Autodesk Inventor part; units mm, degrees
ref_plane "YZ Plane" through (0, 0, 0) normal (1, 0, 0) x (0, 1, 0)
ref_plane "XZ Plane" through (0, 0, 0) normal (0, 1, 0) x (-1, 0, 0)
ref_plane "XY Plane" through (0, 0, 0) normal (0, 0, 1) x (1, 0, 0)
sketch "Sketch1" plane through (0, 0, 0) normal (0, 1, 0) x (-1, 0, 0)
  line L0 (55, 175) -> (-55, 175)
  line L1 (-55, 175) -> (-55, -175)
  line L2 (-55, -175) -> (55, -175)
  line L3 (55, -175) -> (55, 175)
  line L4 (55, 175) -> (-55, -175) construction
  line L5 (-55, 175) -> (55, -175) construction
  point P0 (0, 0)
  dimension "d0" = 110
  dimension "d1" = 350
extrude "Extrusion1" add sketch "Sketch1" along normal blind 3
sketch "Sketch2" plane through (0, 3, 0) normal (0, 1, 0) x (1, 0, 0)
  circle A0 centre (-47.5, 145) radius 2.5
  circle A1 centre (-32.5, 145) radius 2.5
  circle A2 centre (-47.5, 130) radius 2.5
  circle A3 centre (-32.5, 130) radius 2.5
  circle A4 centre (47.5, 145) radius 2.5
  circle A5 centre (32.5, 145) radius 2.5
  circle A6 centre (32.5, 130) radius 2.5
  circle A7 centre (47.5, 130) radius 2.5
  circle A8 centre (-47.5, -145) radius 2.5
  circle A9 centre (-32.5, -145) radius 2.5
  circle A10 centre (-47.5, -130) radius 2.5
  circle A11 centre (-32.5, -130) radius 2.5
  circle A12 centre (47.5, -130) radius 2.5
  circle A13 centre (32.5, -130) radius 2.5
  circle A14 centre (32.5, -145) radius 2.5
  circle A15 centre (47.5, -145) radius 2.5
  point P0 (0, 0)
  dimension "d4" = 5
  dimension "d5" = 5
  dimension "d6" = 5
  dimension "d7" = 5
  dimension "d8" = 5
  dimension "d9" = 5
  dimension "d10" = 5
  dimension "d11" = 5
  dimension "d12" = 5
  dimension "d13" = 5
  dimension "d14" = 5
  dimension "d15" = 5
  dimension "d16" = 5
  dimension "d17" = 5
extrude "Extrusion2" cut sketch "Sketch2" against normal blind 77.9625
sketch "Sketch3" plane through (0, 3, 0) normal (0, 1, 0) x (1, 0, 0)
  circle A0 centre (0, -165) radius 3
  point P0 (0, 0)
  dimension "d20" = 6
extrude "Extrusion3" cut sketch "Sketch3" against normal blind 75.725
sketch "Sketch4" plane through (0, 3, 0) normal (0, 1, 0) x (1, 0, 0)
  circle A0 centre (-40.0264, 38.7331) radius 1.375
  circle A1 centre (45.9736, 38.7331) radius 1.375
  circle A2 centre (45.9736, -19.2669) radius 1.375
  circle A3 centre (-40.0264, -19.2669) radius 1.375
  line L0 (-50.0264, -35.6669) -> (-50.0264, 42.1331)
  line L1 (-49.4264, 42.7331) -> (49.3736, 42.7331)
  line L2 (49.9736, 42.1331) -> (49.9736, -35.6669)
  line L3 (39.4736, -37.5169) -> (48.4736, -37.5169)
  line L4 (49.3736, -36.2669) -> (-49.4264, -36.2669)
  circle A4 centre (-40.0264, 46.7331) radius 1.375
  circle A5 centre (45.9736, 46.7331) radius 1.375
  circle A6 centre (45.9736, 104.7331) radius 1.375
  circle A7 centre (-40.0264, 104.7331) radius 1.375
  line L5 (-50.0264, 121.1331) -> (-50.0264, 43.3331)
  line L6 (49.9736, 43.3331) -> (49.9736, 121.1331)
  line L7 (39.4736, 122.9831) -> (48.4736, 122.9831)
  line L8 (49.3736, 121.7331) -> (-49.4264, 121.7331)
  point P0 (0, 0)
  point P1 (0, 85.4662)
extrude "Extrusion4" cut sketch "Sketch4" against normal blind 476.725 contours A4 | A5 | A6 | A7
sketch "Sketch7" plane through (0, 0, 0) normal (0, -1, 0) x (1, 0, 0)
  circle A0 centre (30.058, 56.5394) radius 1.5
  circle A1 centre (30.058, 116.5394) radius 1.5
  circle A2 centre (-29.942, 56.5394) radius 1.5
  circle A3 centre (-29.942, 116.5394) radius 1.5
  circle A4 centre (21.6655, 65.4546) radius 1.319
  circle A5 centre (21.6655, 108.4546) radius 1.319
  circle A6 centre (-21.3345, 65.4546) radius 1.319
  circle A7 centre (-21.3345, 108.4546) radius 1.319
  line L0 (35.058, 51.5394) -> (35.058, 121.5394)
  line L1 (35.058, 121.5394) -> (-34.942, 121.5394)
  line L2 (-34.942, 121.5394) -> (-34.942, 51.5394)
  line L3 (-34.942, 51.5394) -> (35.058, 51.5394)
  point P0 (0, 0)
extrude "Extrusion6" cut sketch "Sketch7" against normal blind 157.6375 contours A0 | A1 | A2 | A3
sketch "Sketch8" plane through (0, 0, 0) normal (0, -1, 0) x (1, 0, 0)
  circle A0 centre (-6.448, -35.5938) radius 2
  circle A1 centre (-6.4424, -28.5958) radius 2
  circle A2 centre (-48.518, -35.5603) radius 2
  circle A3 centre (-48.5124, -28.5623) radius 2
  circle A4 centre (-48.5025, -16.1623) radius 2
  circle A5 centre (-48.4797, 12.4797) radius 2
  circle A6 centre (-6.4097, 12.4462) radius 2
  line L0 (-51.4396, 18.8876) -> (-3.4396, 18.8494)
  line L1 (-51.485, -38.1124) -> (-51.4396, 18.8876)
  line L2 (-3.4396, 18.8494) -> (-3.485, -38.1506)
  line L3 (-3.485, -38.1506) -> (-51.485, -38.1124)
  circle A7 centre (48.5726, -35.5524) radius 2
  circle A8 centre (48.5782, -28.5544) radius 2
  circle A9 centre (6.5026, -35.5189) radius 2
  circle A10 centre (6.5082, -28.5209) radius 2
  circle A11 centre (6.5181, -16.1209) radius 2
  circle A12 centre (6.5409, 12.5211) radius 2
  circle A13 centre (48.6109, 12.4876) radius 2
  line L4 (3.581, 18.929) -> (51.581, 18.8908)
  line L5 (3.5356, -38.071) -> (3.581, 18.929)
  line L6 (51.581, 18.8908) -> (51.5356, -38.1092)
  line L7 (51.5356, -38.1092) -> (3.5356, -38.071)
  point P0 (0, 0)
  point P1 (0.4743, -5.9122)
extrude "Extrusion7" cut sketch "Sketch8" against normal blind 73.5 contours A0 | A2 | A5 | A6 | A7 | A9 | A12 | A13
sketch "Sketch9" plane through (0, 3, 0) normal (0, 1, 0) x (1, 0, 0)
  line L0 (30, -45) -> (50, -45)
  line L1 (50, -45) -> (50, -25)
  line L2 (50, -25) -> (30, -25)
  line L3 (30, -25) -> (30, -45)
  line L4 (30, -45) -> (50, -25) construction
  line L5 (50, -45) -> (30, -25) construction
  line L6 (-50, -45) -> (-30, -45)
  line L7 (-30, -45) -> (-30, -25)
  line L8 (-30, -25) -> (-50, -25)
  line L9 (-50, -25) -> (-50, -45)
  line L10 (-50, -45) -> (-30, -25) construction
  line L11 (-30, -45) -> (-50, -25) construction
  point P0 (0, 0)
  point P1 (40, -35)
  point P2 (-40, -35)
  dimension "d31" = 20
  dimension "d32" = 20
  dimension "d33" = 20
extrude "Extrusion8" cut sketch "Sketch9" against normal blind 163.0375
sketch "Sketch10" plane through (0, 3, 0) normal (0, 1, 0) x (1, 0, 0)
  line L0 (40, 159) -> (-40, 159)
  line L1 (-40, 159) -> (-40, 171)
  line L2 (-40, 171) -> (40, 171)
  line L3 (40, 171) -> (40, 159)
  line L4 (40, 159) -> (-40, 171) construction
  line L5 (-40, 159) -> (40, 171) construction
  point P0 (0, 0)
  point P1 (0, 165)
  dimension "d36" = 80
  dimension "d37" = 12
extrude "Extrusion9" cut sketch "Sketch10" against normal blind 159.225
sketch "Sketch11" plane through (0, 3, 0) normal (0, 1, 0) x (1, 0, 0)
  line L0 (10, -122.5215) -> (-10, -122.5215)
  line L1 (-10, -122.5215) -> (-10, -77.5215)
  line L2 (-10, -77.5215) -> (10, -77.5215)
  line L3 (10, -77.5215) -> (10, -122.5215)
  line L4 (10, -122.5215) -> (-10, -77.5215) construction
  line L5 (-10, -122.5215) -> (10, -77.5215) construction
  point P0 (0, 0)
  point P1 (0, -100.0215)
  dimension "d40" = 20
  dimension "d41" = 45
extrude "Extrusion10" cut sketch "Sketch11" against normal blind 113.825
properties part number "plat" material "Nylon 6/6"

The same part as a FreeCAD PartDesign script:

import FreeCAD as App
import Part
import Sketcher
from FreeCAD import Vector
Q = App.Units.Quantity

doc = App.newDocument("Part")
body = doc.addObject("PartDesign::Body", "Body")

# Sketch on XZ plane
sketch1 = doc.addObject("Sketcher::SketchObject", "Sketch")
body.addObject(sketch1)
sketch1.AttachmentSupport = (doc.XZ_Plane, [""])
sketch1.MapMode = "FlatFace"
sketch1.addGeometry(Part.LineSegment(Vector(-55, -175, 0), Vector(-55, 175, 0)), False)
sketch1.addGeometry(Part.LineSegment(Vector(-55, 175, 0), Vector(55, 175, 0)), False)
sketch1.addGeometry(Part.LineSegment(Vector(55, 175, 0), Vector(55, -175, 0)), False)
sketch1.addGeometry(Part.LineSegment(Vector(55, -175, 0), Vector(-55, -175, 0)), False)
sketch1.addConstraint(Sketcher.Constraint("Coincident", 0, 2, 1, 1))
sketch1.addConstraint(Sketcher.Constraint("Coincident", 1, 2, 2, 1))
sketch1.addConstraint(Sketcher.Constraint("Coincident", 2, 2, 3, 1))
sketch1.addConstraint(Sketcher.Constraint("Coincident", 3, 2, 0, 1))
sketch1.addConstraint(Sketcher.Constraint("Vertical", 0))
sketch1.addConstraint(Sketcher.Constraint("Horizontal", 1))
sketch1.addConstraint(Sketcher.Constraint("Vertical", 2))
sketch1.addConstraint(Sketcher.Constraint("Horizontal", 3))
sketch1.addConstraint(Sketcher.Constraint("Symmetric", 0, 2, 2, 2, -1, 1))
sketch1.addConstraint(Sketcher.Constraint("DistanceX", 1, 1, 1, 2, Q("110 mm")))
sketch1.addConstraint(Sketcher.Constraint("DistanceY", 0, 1, 0, 2, Q("350 mm")))
pad1 = doc.addObject("PartDesign::Pad", "Pad")
body.addObject(pad1)
pad1.Profile = sketch1
pad1.Length = 3
pad1.Reversed = True

# Sketch on XZ plane
sketch2 = doc.addObject("Sketcher::SketchObject", "Sketch001")
body.addObject(sketch2)
sketch2.AttachmentSupport = (doc.XZ_Plane, [""])
sketch2.MapMode = "FlatFace"
sketch2.AttachmentOffset = App.Placement(Vector(0, 0, -3), App.Rotation())
sketch2.addGeometry(Part.Circle(Vector(-47.5, -145, 0), Vector(0, 0, 1), 2.5), False)
sketch2.addGeometry(Part.Circle(Vector(-32.5, -145, 0), Vector(0, 0, 1), 2.5), False)
sketch2.addGeometry(Part.Circle(Vector(-47.5, -130, 0), Vector(0, 0, 1), 2.5), False)
sketch2.addGeometry(Part.Circle(Vector(-32.5, -130, 0), Vector(0, 0, 1), 2.5), False)
sketch2.addGeometry(Part.Circle(Vector(47.5, -145, 0), Vector(0, 0, 1), 2.5), False)
sketch2.addGeometry(Part.Circle(Vector(32.5, -145, 0), Vector(0, 0, 1), 2.5), False)
sketch2.addGeometry(Part.Circle(Vector(32.5, -130, 0), Vector(0, 0, 1), 2.5), False)
sketch2.addGeometry(Part.Circle(Vector(47.5, -130, 0), Vector(0, 0, 1), 2.5), False)
sketch2.addGeometry(Part.Circle(Vector(-47.5, 145, 0), Vector(0, 0, 1), 2.5), False)
sketch2.addGeometry(Part.Circle(Vector(-32.5, 145, 0), Vector(0, 0, 1), 2.5), False)
sketch2.addGeometry(Part.Circle(Vector(-47.5, 130, 0), Vector(0, 0, 1), 2.5), False)
sketch2.addGeometry(Part.Circle(Vector(-32.5, 130, 0), Vector(0, 0, 1), 2.5), False)
sketch2.addGeometry(Part.Circle(Vector(47.5, 130, 0), Vector(0, 0, 1), 2.5), False)
sketch2.addGeometry(Part.Circle(Vector(32.5, 130, 0), Vector(0, 0, 1), 2.5), False)
sketch2.addGeometry(Part.Circle(Vector(32.5, 145, 0), Vector(0, 0, 1), 2.5), False)
sketch2.addGeometry(Part.Circle(Vector(47.5, 145, 0), Vector(0, 0, 1), 2.5), False)
sketch2.addConstraint(Sketcher.Constraint("Equal", 0, 1))
sketch2.addConstraint(Sketcher.Constraint("Equal", 1, 2))
sketch2.addConstraint(Sketcher.Constraint("Equal", 2, 3))
sketch2.addConstraint(Sketcher.Constraint("Equal", 3, 4))
sketch2.addConstraint(Sketcher.Constraint("Equal", 4, 5))
sketch2.addConstraint(Sketcher.Constraint("Equal", 5, 6))
sketch2.addConstraint(Sketcher.Constraint("Equal", 6, 7))
sketch2.addConstraint(Sketcher.Constraint("Equal", 7, 8))
sketch2.addConstraint(Sketcher.Constraint("Equal", 8, 9))
sketch2.addConstraint(Sketcher.Constraint("Equal", 9, 10))
sketch2.addConstraint(Sketcher.Constraint("Equal", 10, 11))
sketch2.addConstraint(Sketcher.Constraint("Equal", 11, 12))
sketch2.addConstraint(Sketcher.Constraint("Equal", 12, 13))
sketch2.addConstraint(Sketcher.Constraint("Equal", 13, 14))
sketch2.addConstraint(Sketcher.Constraint("Equal", 14, 15))
sketch2.addConstraint(Sketcher.Constraint("Symmetric", 4, 3, 8, 3, -1, 1))
sketch2.addConstraint(Sketcher.Constraint("Symmetric", 5, 3, 9, 3, -1, 1))
sketch2.addConstraint(Sketcher.Constraint("Symmetric", 7, 3, 10, 3, -1, 1))
sketch2.addConstraint(Sketcher.Constraint("Symmetric", 6, 3, 11, 3, -1, 1))
sketch2.addConstraint(Sketcher.Constraint("Symmetric", 2, 3, 12, 3, -1, 1))
sketch2.addConstraint(Sketcher.Constraint("Symmetric", 3, 3, 13, 3, -1, 1))
sketch2.addConstraint(Sketcher.Constraint("Symmetric", 1, 3, 14, 3, -1, 1))
sketch2.addConstraint(Sketcher.Constraint("Symmetric", 0, 3, 15, 3, -1, 1))
sketch2.addConstraint(Sketcher.Constraint("Symmetric", 0, 3, 4, 3, -2))
sketch2.addConstraint(Sketcher.Constraint("Symmetric", 1, 3, 5, 3, -2))
sketch2.addConstraint(Sketcher.Constraint("Symmetric", 3, 3, 6, 3, -2))
sketch2.addConstraint(Sketcher.Constraint("Symmetric", 2, 3, 7, 3, -2))
sketch2.addConstraint(Sketcher.Constraint("Horizontal", 0, 3, 1, 3))
sketch2.addConstraint(Sketcher.Constraint("Horizontal", 2, 3, 3, 3))
sketch2.addConstraint(Sketcher.Constraint("Vertical", 0, 3, 2, 3))
sketch2.addConstraint(Sketcher.Constraint("Vertical", 1, 3, 3, 3))
sketch2.addConstraint(Sketcher.Constraint("Diameter", 0, Q("5 mm")))
sketch2.addConstraint(Sketcher.Constraint("DistanceY", 0, 3, -1, 1, Q("145 mm")))
sketch2.addConstraint(Sketcher.Constraint("DistanceY", 2, 3, -1, 1, Q("130 mm")))
sketch2.addConstraint(Sketcher.Constraint("DistanceX", 0, 3, 1, 3, Q("15 mm")))
sketch2.addConstraint(Sketcher.Constraint("DistanceX", 1, 3, 4, 3, Q("80 mm")))
pocket1 = doc.addObject("PartDesign::Pocket", "Pocket")
body.addObject(pocket1)
pocket1.Profile = sketch2
pocket1.Length = 77.9625
pocket1.Reversed = True

# Sketch on XZ plane
sketch3 = doc.addObject("Sketcher::SketchObject", "Sketch002")
body.addObject(sketch3)
sketch3.AttachmentSupport = (doc.XZ_Plane, [""])
sketch3.MapMode = "FlatFace"
sketch3.AttachmentOffset = App.Placement(Vector(0, 0, -3), App.Rotation())
sketch3.addGeometry(Part.Circle(Vector(0, 165, 0), Vector(0, 0, 1), 3), False)
sketch3.addConstraint(Sketcher.Constraint("PointOnObject", 0, 3, -2))
sketch3.addConstraint(Sketcher.Constraint("Diameter", 0, Q("6 mm")))
sketch3.addConstraint(Sketcher.Constraint("DistanceY", -1, 1, 0, 3, Q("165 mm")))
pocket2 = doc.addObject("PartDesign::Pocket", "Pocket001")
body.addObject(pocket2)
pocket2.Profile = sketch3
pocket2.Length = 75.725
pocket2.Reversed = True

# Sketch on XZ plane
sketch4 = doc.addObject("Sketcher::SketchObject", "Sketch003")
body.addObject(sketch4)
sketch4.AttachmentSupport = (doc.XZ_Plane, [""])
sketch4.MapMode = "FlatFace"
sketch4.AttachmentOffset = App.Placement(Vector(0, 0, -3), App.Rotation())
sketch4.addGeometry(Part.Circle(Vector(-40, -46.7, 0), Vector(0, 0, 1), 1.4), False)
sketch4.addGeometry(Part.Circle(Vector(46, -46.7, 0), Vector(0, 0, 1), 1.4), False)
sketch4.addGeometry(Part.Circle(Vector(46, -104.7, 0), Vector(0, 0, 1), 1.4), False)
sketch4.addGeometry(Part.Circle(Vector(-40, -104.7, 0), Vector(0, 0, 1), 1.4), False)
sketch4.addConstraint(Sketcher.Constraint("Equal", 0, 1))
sketch4.addConstraint(Sketcher.Constraint("Equal", 1, 2))
sketch4.addConstraint(Sketcher.Constraint("Equal", 2, 3))
sketch4.addConstraint(Sketcher.Constraint("Horizontal", 0, 3, 1, 3))
sketch4.addConstraint(Sketcher.Constraint("Horizontal", 2, 3, 3, 3))
sketch4.addConstraint(Sketcher.Constraint("Vertical", 1, 3, 2, 3))
sketch4.addConstraint(Sketcher.Constraint("Vertical", 0, 3, 3, 3))
sketch4.addConstraint(Sketcher.Constraint("Diameter", 0, Q("2.75 mm")))
sketch4.addConstraint(Sketcher.Constraint("DistanceX", 0, 3, 1, 3, Q("86 mm")))
sketch4.addConstraint(Sketcher.Constraint("DistanceY", 2, 3, 1, 3, Q("58 mm")))
sketch4.addConstraint(Sketcher.Constraint("DistanceY", 0, 3, -1, 1, Q("46.733 mm")))
sketch4.addConstraint(Sketcher.Constraint("DistanceX", 0, 3, -1, 1, Q("40.0264 mm")))
pocket3 = doc.addObject("PartDesign::Pocket", "Pocket002")
body.addObject(pocket3)
pocket3.Profile = sketch4
pocket3.Length = 476.725
pocket3.Reversed = True

# Sketch on XZ plane
sketch5 = doc.addObject("Sketcher::SketchObject", "Sketch004")
body.addObject(sketch5)
sketch5.AttachmentSupport = (doc.XZ_Plane, [""])
sketch5.MapMode = "FlatFace"
sketch5.addGeometry(Part.Circle(Vector(30.1, 56.5, 0), Vector(0, 0, 1), 1.5), False)
sketch5.addGeometry(Part.Circle(Vector(30.1, 116.5, 0), Vector(0, 0, 1), 1.5), False)
sketch5.addGeometry(Part.Circle(Vector(-29.9, 56.5, 0), Vector(0, 0, 1), 1.5), False)
sketch5.addGeometry(Part.Circle(Vector(-29.9, 116.5, 0), Vector(0, 0, 1), 1.5), False)
sketch5.addConstraint(Sketcher.Constraint("Equal", 0, 1))
sketch5.addConstraint(Sketcher.Constraint("Equal", 1, 2))
sketch5.addConstraint(Sketcher.Constraint("Equal", 2, 3))
sketch5.addConstraint(Sketcher.Constraint("Horizontal", 0, 3, 2, 3))
sketch5.addConstraint(Sketcher.Constraint("Horizontal", 1, 3, 3, 3))
sketch5.addConstraint(Sketcher.Constraint("Vertical", 0, 3, 1, 3))
sketch5.addConstraint(Sketcher.Constraint("Vertical", 2, 3, 3, 3))
sketch5.addConstraint(Sketcher.Constraint("Diameter", 0, Q("3 mm")))
sketch5.addConstraint(Sketcher.Constraint("DistanceY", 0, 3, 1, 3, Q("60 mm")))
sketch5.addConstraint(Sketcher.Constraint("DistanceX", 2, 3, 0, 3, Q("60 mm")))
sketch5.addConstraint(Sketcher.Constraint("DistanceX", -1, 1, 0, 3, Q("30.058 mm")))
sketch5.addConstraint(Sketcher.Constraint("DistanceY", -1, 1, 0, 3, Q("56.5394 mm")))
pocket4 = doc.addObject("PartDesign::Pocket", "Pocket003")
body.addObject(pocket4)
pocket4.Profile = sketch5
pocket4.Length = 157.6375

# Sketch on XZ plane
sketch6 = doc.addObject("Sketcher::SketchObject", "Sketch005")
body.addObject(sketch6)
sketch6.AttachmentSupport = (doc.XZ_Plane, [""])
sketch6.MapMode = "FlatFace"
sketch6.addGeometry(Part.Circle(Vector(-6.4, -35.6, 0), Vector(0, 0, 1), 2), False)
sketch6.addGeometry(Part.Circle(Vector(-48.5, -35.6, 0), Vector(0, 0, 1), 2), False)
sketch6.addGeometry(Part.Circle(Vector(-48.5, 12.5, 0), Vector(0, 0, 1), 2), False)
sketch6.addGeometry(Part.Circle(Vector(-6.4, 12.4, 0), Vector(0, 0, 1), 2), False)
sketch6.addGeometry(Part.Circle(Vector(48.6, -35.6, 0), Vector(0, 0, 1), 2), False)
sketch6.addGeometry(Part.Circle(Vector(6.5, -35.5, 0), Vector(0, 0, 1), 2), False)
sketch6.addGeometry(Part.Circle(Vector(6.5, 12.5, 0), Vector(0, 0, 1), 2), False)
sketch6.addGeometry(Part.Circle(Vector(48.6, 12.5, 0), Vector(0, 0, 1), 2), False)
sketch6.addConstraint(Sketcher.Constraint("Equal", 0, 1))
sketch6.addConstraint(Sketcher.Constraint("Equal", 1, 2))
sketch6.addConstraint(Sketcher.Constraint("Equal", 2, 3))
sketch6.addConstraint(Sketcher.Constraint("Equal", 3, 4))
sketch6.addConstraint(Sketcher.Constraint("Equal", 4, 5))
sketch6.addConstraint(Sketcher.Constraint("Equal", 5, 6))
sketch6.addConstraint(Sketcher.Constraint("Equal", 6, 7))
sketch6.addConstraint(Sketcher.Constraint("Diameter", 0, Q("4 mm")))
sketch6.addConstraint(Sketcher.Constraint("DistanceX", 1, 3, 0, 3, Q("42.07 mm")))
sketch6.addConstraint(Sketcher.Constraint("DistanceY", 1, 3, 2, 3, Q("48.04 mm")))
sketch6.addConstraint(Sketcher.Constraint("DistanceX", 2, 3, 3, 3, Q("42.07 mm")))
sketch6.addConstraint(Sketcher.Constraint("DistanceY", 0, 3, 3, 3, Q("48.04 mm")))
sketch6.addConstraint(Sketcher.Constraint("DistanceX", 5, 3, 4, 3, Q("42.07 mm")))
sketch6.addConstraint(Sketcher.Constraint("DistanceY", 5, 3, 6, 3, Q("48.04 mm")))
sketch6.addConstraint(Sketcher.Constraint("DistanceX", 6, 3, 7, 3, Q("42.07 mm")))
sketch6.addConstraint(Sketcher.Constraint("DistanceY", 4, 3, 7, 3, Q("48.04 mm")))
sketch6.addConstraint(Sketcher.Constraint("DistanceX", 0, 3, -1, 1, Q("6.448 mm")))
sketch6.addConstraint(Sketcher.Constraint("DistanceY", 5, 3, -1, 1, Q("35.519 mm")))
sketch6.addConstraint(Sketcher.Constraint("DistanceX", -1, 1, 6, 3, Q("6.541 mm")))
sketch6.addConstraint(Sketcher.Constraint("DistanceY", 1, 3, 4, 3, Q("0.008 mm")))
sketch6.addConstraint(Sketcher.Constraint("DistanceY", 0, 3, 5, 3, Q("0.075 mm")))
sketch6.addConstraint(Sketcher.Constraint("DistanceY", 1, 3, -1, 1, Q("35.5603 mm")))
sketch6.addConstraint(Sketcher.Constraint("DistanceX", 2, 3, -1, 1, Q("48.4797 mm")))
sketch6.addConstraint(Sketcher.Constraint("DistanceX", -1, 1, 4, 3, Q("48.5726 mm")))
pocket5 = doc.addObject("PartDesign::Pocket", "Pocket004")
body.addObject(pocket5)
pocket5.Profile = sketch6
pocket5.Length = 73.5

# Sketch on XZ plane
sketch7 = doc.addObject("Sketcher::SketchObject", "Sketch006")
body.addObject(sketch7)
sketch7.AttachmentSupport = (doc.XZ_Plane, [""])
sketch7.MapMode = "FlatFace"
sketch7.AttachmentOffset = App.Placement(Vector(0, 0, -3), App.Rotation())
sketch7.addGeometry(Part.LineSegment(Vector(30, 25, 0), Vector(30, 45, 0)), False)
sketch7.addGeometry(Part.LineSegment(Vector(30, 45, 0), Vector(50, 45, 0)), False)
sketch7.addGeometry(Part.LineSegment(Vector(50, 45, 0), Vector(50, 25, 0)), False)
sketch7.addGeometry(Part.LineSegment(Vector(50, 25, 0), Vector(30, 25, 0)), False)
sketch7.addGeometry(Part.LineSegment(Vector(-50, 25, 0), Vector(-50, 45, 0)), False)
sketch7.addGeometry(Part.LineSegment(Vector(-50, 45, 0), Vector(-30, 45, 0)), False)
sketch7.addGeometry(Part.LineSegment(Vector(-30, 45, 0), Vector(-30, 25, 0)), False)
sketch7.addGeometry(Part.LineSegment(Vector(-30, 25, 0), Vector(-50, 25, 0)), False)
sketch7.addConstraint(Sketcher.Constraint("Coincident", 0, 2, 1, 1))
sketch7.addConstraint(Sketcher.Constraint("Coincident", 1, 2, 2, 1))
sketch7.addConstraint(Sketcher.Constraint("Coincident", 2, 2, 3, 1))
sketch7.addConstraint(Sketcher.Constraint("Coincident", 3, 2, 0, 1))
sketch7.addConstraint(Sketcher.Constraint("Coincident", 4, 2, 5, 1))
sketch7.addConstraint(Sketcher.Constraint("Coincident", 5, 2, 6, 1))
sketch7.addConstraint(Sketcher.Constraint("Coincident", 6, 2, 7, 1))
sketch7.addConstraint(Sketcher.Constraint("Coincident", 7, 2, 4, 1))
sketch7.addConstraint(Sketcher.Constraint("Vertical", 0))
sketch7.addConstraint(Sketcher.Constraint("Horizontal", 1))
sketch7.addConstraint(Sketcher.Constraint("Vertical", 2))
sketch7.addConstraint(Sketcher.Constraint("Horizontal", 3))
sketch7.addConstraint(Sketcher.Constraint("Vertical", 4))
sketch7.addConstraint(Sketcher.Constraint("Horizontal", 5))
sketch7.addConstraint(Sketcher.Constraint("Vertical", 6))
sketch7.addConstraint(Sketcher.Constraint("Horizontal", 7))
sketch7.addConstraint(Sketcher.Constraint("Symmetric", 1, 2, 4, 2, -2))
sketch7.addConstraint(Sketcher.Constraint("Symmetric", 3, 2, 6, 2, -2))
sketch7.addConstraint(Sketcher.Constraint("Equal", 7, 0))
sketch7.addConstraint(Sketcher.Constraint("DistanceX", 1, 1, 1, 2, Q("20 mm")))
sketch7.addConstraint(Sketcher.Constraint("DistanceX", -1, 1, 0, 2, Q("30 mm")))
sketch7.addConstraint(Sketcher.Constraint("DistanceY", -1, 1, 0, 2, Q("45 mm")))
pocket6 = doc.addObject("PartDesign::Pocket", "Pocket005")
body.addObject(pocket6)
pocket6.Profile = sketch7
pocket6.Length = 163.0375
pocket6.Reversed = True

# Sketch on XZ plane
sketch8 = doc.addObject("Sketcher::SketchObject", "Sketch007")
body.addObject(sketch8)
sketch8.AttachmentSupport = (doc.XZ_Plane, [""])
sketch8.MapMode = "FlatFace"
sketch8.AttachmentOffset = App.Placement(Vector(0, 0, -3), App.Rotation())
sketch8.addGeometry(Part.LineSegment(Vector(-40, -159, 0), Vector(40, -159, 0)), False)
sketch8.addGeometry(Part.LineSegment(Vector(40, -159, 0), Vector(40, -171, 0)), False)
sketch8.addGeometry(Part.LineSegment(Vector(40, -171, 0), Vector(-40, -171, 0)), False)
sketch8.addGeometry(Part.LineSegment(Vector(-40, -171, 0), Vector(-40, -159, 0)), False)
sketch8.addConstraint(Sketcher.Constraint("Coincident", 0, 2, 1, 1))
sketch8.addConstraint(Sketcher.Constraint("Coincident", 1, 2, 2, 1))
sketch8.addConstraint(Sketcher.Constraint("Coincident", 2, 2, 3, 1))
sketch8.addConstraint(Sketcher.Constraint("Coincident", 3, 2, 0, 1))
sketch8.addConstraint(Sketcher.Constraint("Horizontal", 0))
sketch8.addConstraint(Sketcher.Constraint("Vertical", 1))
sketch8.addConstraint(Sketcher.Constraint("Horizontal", 2))
sketch8.addConstraint(Sketcher.Constraint("Vertical", 3))
sketch8.addConstraint(Sketcher.Constraint("DistanceX", 0, 1, 0, 2, Q("80 mm")))
sketch8.addConstraint(Sketcher.Constraint("DistanceY", 1, 2, 1, 1, Q("12 mm")))
sketch8.addConstraint(Sketcher.Constraint("DistanceX", -1, 1, 0, 2, Q("40 mm")))
sketch8.addConstraint(Sketcher.Constraint("DistanceY", 0, 2, -1, 1, Q("159 mm")))
pocket7 = doc.addObject("PartDesign::Pocket", "Pocket006")
body.addObject(pocket7)
pocket7.Profile = sketch8
pocket7.Length = 159.225
pocket7.Reversed = True

# Sketch on XZ plane
sketch9 = doc.addObject("Sketcher::SketchObject", "Sketch008")
body.addObject(sketch9)
sketch9.AttachmentSupport = (doc.XZ_Plane, [""])
sketch9.MapMode = "FlatFace"
sketch9.AttachmentOffset = App.Placement(Vector(0, 0, -3), App.Rotation())
sketch9.addGeometry(Part.LineSegment(Vector(-10, 123, 0), Vector(10, 123, 0)), False)
sketch9.addGeometry(Part.LineSegment(Vector(10, 123, 0), Vector(10, 78, 0)), False)
sketch9.addGeometry(Part.LineSegment(Vector(10, 78, 0), Vector(-10, 78, 0)), False)
sketch9.addGeometry(Part.LineSegment(Vector(-10, 78, 0), Vector(-10, 123, 0)), False)
sketch9.addConstraint(Sketcher.Constraint("Coincident", 0, 2, 1, 1))
sketch9.addConstraint(Sketcher.Constraint("Coincident", 1, 2, 2, 1))
sketch9.addConstraint(Sketcher.Constraint("Coincident", 2, 2, 3, 1))
sketch9.addConstraint(Sketcher.Constraint("Coincident", 3, 2, 0, 1))
sketch9.addConstraint(Sketcher.Constraint("Horizontal", 0))
sketch9.addConstraint(Sketcher.Constraint("Vertical", 1))
sketch9.addConstraint(Sketcher.Constraint("Horizontal", 2))
sketch9.addConstraint(Sketcher.Constraint("Vertical", 3))
sketch9.addConstraint(Sketcher.Constraint("DistanceX", 0, 1, 0, 2, Q("20 mm")))
sketch9.addConstraint(Sketcher.Constraint("DistanceY", 1, 2, 1, 1, Q("45 mm")))
sketch9.addConstraint(Sketcher.Constraint("DistanceX", -1, 1, 0, 2, Q("10 mm")))
sketch9.addConstraint(Sketcher.Constraint("DistanceY", -1, 1, 0, 2, Q("122.5215 mm")))
pocket8 = doc.addObject("PartDesign::Pocket", "Pocket007")
body.addObject(pocket8)
pocket8.Profile = sketch9
pocket8.Length = 113.825
pocket8.Reversed = True

doc.recompute()
